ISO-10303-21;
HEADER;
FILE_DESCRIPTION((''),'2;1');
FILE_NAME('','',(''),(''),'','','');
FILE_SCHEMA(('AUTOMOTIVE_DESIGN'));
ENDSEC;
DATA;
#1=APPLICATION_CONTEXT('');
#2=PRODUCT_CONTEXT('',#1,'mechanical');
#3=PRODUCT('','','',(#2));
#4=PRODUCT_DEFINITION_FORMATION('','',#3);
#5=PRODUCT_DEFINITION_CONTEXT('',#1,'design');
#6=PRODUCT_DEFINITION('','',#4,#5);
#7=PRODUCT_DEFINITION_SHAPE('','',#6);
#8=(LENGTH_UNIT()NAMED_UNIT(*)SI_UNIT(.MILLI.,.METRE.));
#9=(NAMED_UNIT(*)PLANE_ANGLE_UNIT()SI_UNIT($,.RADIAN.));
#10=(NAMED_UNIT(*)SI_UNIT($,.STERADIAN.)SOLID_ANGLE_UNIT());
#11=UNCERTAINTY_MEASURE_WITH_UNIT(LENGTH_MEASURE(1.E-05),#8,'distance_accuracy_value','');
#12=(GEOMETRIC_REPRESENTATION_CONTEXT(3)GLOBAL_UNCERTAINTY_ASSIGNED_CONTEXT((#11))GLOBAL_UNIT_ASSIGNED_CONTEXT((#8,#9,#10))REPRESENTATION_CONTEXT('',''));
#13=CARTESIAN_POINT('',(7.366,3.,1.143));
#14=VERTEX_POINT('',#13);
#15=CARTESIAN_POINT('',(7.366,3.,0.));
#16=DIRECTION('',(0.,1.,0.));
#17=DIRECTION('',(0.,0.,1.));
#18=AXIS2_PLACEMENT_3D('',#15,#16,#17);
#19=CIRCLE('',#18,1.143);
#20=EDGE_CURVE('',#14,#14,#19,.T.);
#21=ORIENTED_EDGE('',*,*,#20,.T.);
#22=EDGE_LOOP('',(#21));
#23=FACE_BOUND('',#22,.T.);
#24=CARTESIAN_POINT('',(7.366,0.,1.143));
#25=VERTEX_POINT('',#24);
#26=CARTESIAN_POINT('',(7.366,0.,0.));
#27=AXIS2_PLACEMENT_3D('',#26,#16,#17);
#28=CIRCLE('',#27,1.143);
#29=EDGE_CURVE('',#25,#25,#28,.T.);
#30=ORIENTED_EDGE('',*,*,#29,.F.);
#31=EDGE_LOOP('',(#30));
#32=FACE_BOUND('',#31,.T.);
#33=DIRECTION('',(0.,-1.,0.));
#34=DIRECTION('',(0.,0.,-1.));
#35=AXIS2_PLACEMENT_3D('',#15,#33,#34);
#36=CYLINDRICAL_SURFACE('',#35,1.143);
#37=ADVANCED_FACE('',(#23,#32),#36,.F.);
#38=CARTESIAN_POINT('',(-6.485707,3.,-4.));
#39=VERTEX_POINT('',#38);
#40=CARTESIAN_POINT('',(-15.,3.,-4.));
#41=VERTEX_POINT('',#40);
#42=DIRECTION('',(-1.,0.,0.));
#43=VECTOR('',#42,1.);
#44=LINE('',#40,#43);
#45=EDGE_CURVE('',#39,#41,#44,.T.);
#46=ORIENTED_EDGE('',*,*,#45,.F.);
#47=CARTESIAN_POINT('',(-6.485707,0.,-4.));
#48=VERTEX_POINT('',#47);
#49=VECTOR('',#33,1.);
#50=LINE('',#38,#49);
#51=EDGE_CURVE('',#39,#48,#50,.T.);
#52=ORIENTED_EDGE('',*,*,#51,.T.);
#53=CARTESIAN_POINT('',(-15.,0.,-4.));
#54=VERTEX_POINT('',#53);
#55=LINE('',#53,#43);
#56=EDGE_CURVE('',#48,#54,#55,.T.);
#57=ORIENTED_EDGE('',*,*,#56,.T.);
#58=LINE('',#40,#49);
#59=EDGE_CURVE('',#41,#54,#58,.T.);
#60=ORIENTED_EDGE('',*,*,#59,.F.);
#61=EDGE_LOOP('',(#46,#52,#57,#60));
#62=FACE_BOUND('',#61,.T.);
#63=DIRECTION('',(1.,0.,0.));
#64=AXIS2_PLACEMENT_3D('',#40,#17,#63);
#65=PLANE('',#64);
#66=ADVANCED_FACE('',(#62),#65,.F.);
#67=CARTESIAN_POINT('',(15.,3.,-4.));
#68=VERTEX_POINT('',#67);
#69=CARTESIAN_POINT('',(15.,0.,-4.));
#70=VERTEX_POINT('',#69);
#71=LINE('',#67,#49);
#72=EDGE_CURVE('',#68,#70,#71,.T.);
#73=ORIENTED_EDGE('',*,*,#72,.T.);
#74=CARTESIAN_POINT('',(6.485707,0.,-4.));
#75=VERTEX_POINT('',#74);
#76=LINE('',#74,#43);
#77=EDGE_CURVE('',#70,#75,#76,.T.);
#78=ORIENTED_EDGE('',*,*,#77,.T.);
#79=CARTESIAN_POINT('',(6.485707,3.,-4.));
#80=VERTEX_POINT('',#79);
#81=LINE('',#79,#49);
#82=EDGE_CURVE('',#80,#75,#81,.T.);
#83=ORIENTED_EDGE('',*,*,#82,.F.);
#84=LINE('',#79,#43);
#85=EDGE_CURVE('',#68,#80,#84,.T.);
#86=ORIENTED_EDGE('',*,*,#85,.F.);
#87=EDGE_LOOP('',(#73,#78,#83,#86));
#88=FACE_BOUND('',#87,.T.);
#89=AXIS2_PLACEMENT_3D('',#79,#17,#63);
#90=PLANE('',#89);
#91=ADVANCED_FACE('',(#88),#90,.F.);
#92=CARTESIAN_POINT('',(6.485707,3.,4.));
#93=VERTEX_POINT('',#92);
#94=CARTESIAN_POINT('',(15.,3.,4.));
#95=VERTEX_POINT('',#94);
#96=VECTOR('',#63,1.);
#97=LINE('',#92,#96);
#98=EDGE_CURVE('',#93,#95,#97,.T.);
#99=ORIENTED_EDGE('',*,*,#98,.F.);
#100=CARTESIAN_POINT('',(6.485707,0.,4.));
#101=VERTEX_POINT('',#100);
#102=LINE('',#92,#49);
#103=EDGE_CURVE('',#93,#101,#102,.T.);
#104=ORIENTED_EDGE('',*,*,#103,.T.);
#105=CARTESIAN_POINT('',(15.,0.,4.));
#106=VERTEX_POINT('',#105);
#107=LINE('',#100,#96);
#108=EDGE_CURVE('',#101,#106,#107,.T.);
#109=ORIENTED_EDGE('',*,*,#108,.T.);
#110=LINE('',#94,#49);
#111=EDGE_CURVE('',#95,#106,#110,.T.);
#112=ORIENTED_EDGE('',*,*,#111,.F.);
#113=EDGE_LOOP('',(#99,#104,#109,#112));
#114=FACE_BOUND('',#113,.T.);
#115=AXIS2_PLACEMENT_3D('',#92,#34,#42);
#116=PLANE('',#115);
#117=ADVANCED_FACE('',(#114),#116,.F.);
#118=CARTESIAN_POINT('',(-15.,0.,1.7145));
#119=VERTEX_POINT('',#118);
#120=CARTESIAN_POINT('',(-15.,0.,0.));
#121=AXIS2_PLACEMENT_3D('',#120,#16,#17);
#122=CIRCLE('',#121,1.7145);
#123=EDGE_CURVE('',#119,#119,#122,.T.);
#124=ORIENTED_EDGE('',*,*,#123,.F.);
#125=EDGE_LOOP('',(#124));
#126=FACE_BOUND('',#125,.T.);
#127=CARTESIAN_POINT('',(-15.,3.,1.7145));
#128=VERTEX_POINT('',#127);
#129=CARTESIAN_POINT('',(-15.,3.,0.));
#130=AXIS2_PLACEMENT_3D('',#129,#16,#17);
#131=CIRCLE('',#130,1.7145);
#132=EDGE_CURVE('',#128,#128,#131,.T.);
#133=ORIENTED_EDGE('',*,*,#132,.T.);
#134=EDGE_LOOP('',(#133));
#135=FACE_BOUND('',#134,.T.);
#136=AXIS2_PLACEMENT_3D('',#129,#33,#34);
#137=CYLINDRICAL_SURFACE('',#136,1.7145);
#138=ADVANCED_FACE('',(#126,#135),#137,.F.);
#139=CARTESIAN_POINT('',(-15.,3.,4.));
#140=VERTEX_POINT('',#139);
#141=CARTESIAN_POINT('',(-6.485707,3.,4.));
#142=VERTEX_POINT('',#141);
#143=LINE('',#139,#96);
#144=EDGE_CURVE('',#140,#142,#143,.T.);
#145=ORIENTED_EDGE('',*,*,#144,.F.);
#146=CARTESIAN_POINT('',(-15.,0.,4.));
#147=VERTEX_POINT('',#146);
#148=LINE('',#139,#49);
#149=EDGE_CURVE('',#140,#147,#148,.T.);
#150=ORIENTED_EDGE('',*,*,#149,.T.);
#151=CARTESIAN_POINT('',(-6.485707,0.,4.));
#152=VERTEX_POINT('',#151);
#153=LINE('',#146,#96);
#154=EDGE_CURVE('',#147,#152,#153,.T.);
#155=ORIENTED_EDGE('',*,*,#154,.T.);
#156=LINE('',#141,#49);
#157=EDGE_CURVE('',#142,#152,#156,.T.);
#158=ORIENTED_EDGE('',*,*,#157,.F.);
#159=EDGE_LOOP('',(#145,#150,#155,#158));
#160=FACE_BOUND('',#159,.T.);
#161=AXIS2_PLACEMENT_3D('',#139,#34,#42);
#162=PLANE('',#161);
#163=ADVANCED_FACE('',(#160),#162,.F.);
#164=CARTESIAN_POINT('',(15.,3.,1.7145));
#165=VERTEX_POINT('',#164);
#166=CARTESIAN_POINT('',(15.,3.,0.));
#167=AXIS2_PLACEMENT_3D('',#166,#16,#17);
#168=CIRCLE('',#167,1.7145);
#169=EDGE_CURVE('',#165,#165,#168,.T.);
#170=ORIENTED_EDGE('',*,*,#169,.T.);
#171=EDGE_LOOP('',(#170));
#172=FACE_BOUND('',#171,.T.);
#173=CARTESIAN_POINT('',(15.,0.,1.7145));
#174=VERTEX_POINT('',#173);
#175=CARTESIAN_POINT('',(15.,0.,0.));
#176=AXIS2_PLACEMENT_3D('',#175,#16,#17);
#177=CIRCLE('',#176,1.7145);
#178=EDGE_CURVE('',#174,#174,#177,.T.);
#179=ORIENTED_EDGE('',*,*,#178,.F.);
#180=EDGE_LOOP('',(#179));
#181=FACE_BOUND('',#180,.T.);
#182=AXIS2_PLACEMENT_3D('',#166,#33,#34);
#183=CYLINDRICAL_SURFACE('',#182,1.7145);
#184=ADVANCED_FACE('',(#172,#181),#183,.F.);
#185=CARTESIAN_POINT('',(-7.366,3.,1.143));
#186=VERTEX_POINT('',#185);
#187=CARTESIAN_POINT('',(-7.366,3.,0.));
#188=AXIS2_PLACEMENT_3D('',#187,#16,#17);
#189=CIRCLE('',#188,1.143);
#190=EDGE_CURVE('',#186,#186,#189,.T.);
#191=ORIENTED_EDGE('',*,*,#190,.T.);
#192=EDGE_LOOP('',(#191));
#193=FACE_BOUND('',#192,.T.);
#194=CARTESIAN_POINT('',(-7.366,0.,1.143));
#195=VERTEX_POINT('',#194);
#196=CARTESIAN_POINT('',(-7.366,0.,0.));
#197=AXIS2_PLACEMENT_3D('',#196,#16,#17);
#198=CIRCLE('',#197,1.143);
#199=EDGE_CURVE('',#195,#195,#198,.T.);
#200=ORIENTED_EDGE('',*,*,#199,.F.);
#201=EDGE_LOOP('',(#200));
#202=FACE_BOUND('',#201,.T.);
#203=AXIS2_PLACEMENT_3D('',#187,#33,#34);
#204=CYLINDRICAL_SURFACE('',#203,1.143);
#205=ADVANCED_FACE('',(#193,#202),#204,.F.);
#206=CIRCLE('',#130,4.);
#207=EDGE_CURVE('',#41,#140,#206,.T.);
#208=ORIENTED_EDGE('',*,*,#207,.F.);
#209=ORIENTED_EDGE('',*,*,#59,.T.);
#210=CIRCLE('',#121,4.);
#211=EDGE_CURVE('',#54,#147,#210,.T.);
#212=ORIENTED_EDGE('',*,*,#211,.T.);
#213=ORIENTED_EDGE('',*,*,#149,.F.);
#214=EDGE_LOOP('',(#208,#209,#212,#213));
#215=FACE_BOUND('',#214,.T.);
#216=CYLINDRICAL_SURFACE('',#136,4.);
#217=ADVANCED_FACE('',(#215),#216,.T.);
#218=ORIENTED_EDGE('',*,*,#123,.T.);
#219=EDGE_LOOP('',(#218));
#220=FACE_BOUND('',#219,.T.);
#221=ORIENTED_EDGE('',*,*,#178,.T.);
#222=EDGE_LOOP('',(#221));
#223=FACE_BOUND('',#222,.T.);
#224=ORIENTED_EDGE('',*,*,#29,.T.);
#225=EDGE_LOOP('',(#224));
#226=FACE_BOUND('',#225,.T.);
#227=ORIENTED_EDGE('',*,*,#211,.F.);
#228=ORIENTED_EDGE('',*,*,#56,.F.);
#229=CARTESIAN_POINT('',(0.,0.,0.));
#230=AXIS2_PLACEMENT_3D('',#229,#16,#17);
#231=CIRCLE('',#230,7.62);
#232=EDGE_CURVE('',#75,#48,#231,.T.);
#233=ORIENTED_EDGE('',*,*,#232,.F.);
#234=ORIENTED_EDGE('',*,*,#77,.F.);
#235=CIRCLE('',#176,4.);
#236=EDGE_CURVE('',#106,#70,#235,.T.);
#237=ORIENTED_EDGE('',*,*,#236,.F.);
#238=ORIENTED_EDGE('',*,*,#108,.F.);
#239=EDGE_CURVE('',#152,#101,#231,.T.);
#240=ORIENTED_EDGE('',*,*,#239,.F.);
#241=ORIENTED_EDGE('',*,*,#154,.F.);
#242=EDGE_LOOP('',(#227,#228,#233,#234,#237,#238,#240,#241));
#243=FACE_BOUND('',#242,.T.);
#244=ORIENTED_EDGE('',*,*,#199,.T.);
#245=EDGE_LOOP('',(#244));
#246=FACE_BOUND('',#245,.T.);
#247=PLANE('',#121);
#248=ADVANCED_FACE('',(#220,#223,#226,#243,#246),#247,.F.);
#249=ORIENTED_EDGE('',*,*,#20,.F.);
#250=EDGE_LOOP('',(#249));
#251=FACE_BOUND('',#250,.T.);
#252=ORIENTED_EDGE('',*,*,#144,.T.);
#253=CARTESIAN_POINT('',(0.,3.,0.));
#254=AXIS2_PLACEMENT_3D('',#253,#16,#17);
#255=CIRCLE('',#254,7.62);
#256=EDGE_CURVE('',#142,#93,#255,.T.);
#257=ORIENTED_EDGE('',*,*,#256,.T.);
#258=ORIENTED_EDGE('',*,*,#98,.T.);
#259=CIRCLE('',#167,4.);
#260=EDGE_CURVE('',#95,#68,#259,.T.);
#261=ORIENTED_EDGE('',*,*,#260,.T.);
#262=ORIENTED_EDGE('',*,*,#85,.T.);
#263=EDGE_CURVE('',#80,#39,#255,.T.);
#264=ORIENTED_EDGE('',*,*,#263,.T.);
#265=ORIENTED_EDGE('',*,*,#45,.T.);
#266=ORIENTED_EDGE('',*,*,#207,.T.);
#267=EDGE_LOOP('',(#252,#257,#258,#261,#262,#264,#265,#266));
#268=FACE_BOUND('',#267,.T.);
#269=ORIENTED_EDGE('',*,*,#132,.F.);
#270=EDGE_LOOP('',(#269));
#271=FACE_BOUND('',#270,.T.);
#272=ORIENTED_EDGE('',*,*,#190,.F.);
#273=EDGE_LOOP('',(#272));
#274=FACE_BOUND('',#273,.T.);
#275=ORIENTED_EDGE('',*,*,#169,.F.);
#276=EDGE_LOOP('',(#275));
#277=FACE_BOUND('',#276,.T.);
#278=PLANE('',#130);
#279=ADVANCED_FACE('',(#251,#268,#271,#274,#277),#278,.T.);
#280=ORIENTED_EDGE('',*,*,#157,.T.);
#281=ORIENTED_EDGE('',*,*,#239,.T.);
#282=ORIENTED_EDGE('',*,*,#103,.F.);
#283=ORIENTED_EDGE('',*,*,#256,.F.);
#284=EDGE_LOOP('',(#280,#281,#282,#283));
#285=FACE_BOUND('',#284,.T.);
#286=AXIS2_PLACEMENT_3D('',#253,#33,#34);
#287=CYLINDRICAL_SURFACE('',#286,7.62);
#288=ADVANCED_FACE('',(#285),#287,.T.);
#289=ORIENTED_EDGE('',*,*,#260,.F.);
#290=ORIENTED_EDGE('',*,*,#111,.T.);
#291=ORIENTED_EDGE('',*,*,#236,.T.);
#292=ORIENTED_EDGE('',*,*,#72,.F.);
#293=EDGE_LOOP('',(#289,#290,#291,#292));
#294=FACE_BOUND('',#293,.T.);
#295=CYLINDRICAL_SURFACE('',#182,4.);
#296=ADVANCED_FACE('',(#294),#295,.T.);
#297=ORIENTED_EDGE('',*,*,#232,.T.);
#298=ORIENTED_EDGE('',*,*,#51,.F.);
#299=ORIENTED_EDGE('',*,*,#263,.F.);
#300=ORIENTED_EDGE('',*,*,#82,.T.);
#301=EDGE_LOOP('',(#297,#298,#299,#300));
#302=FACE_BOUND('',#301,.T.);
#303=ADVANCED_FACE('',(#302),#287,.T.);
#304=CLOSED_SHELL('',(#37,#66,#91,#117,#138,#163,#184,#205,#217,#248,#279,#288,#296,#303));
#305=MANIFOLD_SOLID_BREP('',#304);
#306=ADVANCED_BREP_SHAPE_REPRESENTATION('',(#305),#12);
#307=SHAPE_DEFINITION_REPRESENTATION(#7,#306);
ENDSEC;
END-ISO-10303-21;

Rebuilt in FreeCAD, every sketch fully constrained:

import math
import FreeCAD as App
import Part
import Sketcher

V = App.Vector
Q = App.Units.Quantity

doc = App.newDocument("Part")
params = doc.addObject("Spreadsheet::Sheet", "Params")
for row, (alias, value) in enumerate([
    ("sketch1_radius", "0.3 in"),
    ("sketch1_diameter", "0.09 in"),
    ("sketch1_diameter2", "0.135 in"),
    ("pad1_length", "3 mm"),
], start=1):
    params.set(f"A{row}", alias)
    params.set(f"B{row}", "=" + value)
    params.setAlias(f"B{row}", alias)

body = doc.addObject("PartDesign::Body", "Body")

# Sketch on XZ plane
sketch1 = doc.addObject("Sketcher::SketchObject", "Sketch")
body.addObject(sketch1)
sketch1.AttachmentSupport = (doc.XZ_Plane, [""])
sketch1.MapMode = "FlatFace"
sketch1.addGeometry([
    Part.LineSegment(V(-6.485707, -4, 0), V(-15, -4, 0)),  # 0
    Part.ArcOfCircle(Part.Circle(V(-15, 0, 0), V(0, 0, 1), 4), math.radians(90), math.radians(270)),  # 1
    Part.LineSegment(V(-15, 4, 0), V(-6.485707, 4, 0)),  # 2
    Part.ArcOfCircle(Part.Circle(V(0, 0, 0), V(0, 0, 1), 7.62), math.radians(31.663826), math.radians(148.336174)),  # 3
    Part.LineSegment(V(6.485707, 4, 0), V(15, 4, 0)),  # 4
    Part.ArcOfCircle(Part.Circle(V(15, 0, 0), V(0, 0, 1), 4), math.radians(-90), math.radians(90)),  # 5
    Part.LineSegment(V(15, -4, 0), V(6.485707, -4, 0)),  # 6
    Part.ArcOfCircle(Part.Circle(V(0, 0, 0), V(0, 0, 1), 7.62), math.radians(-148.336174), math.radians(-31.663826)),  # 7
    Part.Circle(V(15, 0, 0), V(0, 0, 1), 1.7145),  # 8
    Part.Circle(V(7.366, 0, 0), V(0, 0, 1), 1.143),  # 9
    Part.Circle(V(-7.366, 0, 0), V(0, 0, 1), 1.143),  # 10
    Part.Circle(V(-15, 0, 0), V(0, 0, 1), 1.7145),  # 11
], False)
sketch1.addConstraint([
    Sketcher.Constraint("Tangent", 0, 2, 1, 2),
    Sketcher.Constraint("Tangent", 1, 1, 2, 1),
    Sketcher.Constraint("Coincident", 2, 2, 3, 2),
    Sketcher.Constraint("Coincident", 3, 1, 4, 1),
    Sketcher.Constraint("Tangent", 4, 2, 5, 2),
    Sketcher.Constraint("Tangent", 5, 1, 6, 1),
    Sketcher.Constraint("Coincident", 6, 2, 7, 2),
    Sketcher.Constraint("Coincident", 7, 1, 0, 1),
    Sketcher.Constraint("Horizontal", 0),
    Sketcher.Constraint("Horizontal", 2),
    Sketcher.Constraint("Horizontal", 4),
    Sketcher.Constraint("Horizontal", 6),
    Sketcher.Constraint("Coincident", 3, 3, -1, 1),
    Sketcher.Constraint("Coincident", 7, 3, -1, 1),
    Sketcher.Constraint("Coincident", 8, 3, 5, 3),
    Sketcher.Constraint("Coincident", 11, 3, 1, 3),
    Sketcher.Constraint("Equal", 1, 5),
    Sketcher.Constraint("Equal", 3, 7),
    Sketcher.Constraint("Equal", 9, 10),
    Sketcher.Constraint("Equal", 8, 11),
    Sketcher.Constraint("Symmetric", 1, 3, 5, 3, -1, 1),
    Sketcher.Constraint("Symmetric", 9, 3, 10, 3, -1, 1),
    Sketcher.Constraint("PointOnObject", 1, 3, -1),
    Sketcher.Constraint("PointOnObject", 9, 3, -1),
    Sketcher.Constraint("Radius", 3, Q("0.3 in")),
    Sketcher.Constraint("Diameter", 9, Q("0.09 in")),
    Sketcher.Constraint("Diameter", 8, Q("0.135 in")),
    Sketcher.Constraint("DistanceX", -1, 1, 9, 3, Q("0.29 in")),
    Sketcher.Constraint("Radius", 1, 4.0),
    Sketcher.Constraint("DistanceX", 1, 3, -1, 1, 15.0),
])
sketch1.setExpression("Constraints[24]", "Params.sketch1_radius")
sketch1.setExpression("Constraints[25]", "Params.sketch1_diameter")
sketch1.setExpression("Constraints[26]", "Params.sketch1_diameter2")
pad1 = doc.addObject("PartDesign::Pad", "Pad")
body.addObject(pad1)
pad1.Profile = sketch1
pad1.setExpression("Length", "Params.pad1_length")
pad1.Reversed = True

doc.recompute()
